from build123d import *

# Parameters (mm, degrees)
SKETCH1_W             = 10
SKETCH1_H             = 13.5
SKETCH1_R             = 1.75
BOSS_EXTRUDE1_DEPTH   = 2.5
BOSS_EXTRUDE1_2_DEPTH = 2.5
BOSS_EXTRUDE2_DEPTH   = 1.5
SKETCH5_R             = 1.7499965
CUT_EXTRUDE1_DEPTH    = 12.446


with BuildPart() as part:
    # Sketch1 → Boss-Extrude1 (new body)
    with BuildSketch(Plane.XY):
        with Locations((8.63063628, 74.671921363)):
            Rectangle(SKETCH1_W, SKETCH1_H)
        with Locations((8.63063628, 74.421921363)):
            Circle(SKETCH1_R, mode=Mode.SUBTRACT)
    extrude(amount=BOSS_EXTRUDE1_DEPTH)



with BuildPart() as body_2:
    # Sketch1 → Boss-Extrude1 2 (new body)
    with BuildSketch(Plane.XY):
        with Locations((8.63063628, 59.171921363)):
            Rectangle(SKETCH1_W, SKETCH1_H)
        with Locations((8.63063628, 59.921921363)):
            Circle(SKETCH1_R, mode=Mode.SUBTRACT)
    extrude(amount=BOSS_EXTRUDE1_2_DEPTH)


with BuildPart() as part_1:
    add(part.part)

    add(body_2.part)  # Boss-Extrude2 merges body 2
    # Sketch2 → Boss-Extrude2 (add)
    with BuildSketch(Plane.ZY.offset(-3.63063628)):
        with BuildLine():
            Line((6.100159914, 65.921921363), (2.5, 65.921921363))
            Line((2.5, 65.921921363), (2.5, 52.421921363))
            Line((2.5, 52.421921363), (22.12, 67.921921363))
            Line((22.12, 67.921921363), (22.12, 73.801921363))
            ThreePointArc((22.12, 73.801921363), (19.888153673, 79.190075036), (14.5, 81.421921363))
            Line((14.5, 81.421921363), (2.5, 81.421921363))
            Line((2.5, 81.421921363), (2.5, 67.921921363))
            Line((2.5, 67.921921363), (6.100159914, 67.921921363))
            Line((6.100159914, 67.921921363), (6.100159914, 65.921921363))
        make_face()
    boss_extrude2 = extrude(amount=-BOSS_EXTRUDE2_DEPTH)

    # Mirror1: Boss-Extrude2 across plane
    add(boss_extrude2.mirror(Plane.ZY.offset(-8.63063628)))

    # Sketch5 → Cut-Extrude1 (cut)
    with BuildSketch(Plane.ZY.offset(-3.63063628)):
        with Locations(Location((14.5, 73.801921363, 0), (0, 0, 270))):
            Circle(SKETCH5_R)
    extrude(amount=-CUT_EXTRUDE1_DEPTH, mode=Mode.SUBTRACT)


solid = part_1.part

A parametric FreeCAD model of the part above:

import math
import FreeCAD as App
import Part
import Sketcher

V = App.Vector
Q = App.Units.Quantity

doc = App.newDocument("Part")
body = doc.addObject("PartDesign::Body", "Body")

# Sketch on XY plane
sketch1 = body.newObject("Sketcher::SketchObject", "Sketch")
sketch1.AttachmentSupport = (doc.getObject("XY_Plane"), [""])
sketch1.MapMode = "FlatFace"
sketch1.addGeometry(Part.LineSegment(V(3.630636, 81.421921, 0), V(3.630636, 67.921921, 0)), False)
sketch1.addGeometry(Part.LineSegment(V(3.630636, 67.921921, 0), V(13.630636, 67.921921, 0)), False)
sketch1.addGeometry(Part.LineSegment(V(13.630636, 67.921921, 0), V(13.630636, 81.421921, 0)), False)
sketch1.addGeometry(Part.LineSegment(V(13.630636, 81.421921, 0), V(3.630636, 81.421921, 0)), False)
sketch1.addGeometry(Part.Circle(V(8.630636, 74.421921, 0), V(0, 0, 1), 1.75), False)
sketch1.addConstraint(Sketcher.Constraint("Coincident", 0, 2, 1, 1))
sketch1.addConstraint(Sketcher.Constraint("Coincident", 1, 2, 2, 1))
sketch1.addConstraint(Sketcher.Constraint("Coincident", 2, 2, 3, 1))
sketch1.addConstraint(Sketcher.Constraint("Coincident", 3, 2, 0, 1))
sketch1.addConstraint(Sketcher.Constraint("Vertical", 0))
sketch1.addConstraint(Sketcher.Constraint("Horizontal", 1))
sketch1.addConstraint(Sketcher.Constraint("Vertical", 2))
sketch1.addConstraint(Sketcher.Constraint("Horizontal", 3))
sketch1.addConstraint(Sketcher.Constraint("Diameter", 4, Q("3.5 mm")))
sketch1.addConstraint(Sketcher.Constraint("DistanceX", 1, 1, 1, 2, Q("10 mm")))
sketch1.addConstraint(Sketcher.Constraint("DistanceY", 0, 2, 0, 1, Q("13.5 mm")))
sketch1.addConstraint(Sketcher.Constraint("DistanceX", 0, 2, 4, 3, Q("5 mm")))
sketch1.addConstraint(Sketcher.Constraint("DistanceY", 4, 3, 2, 2, Q("7 mm")))
sketch1.addConstraint(Sketcher.Constraint("DistanceY", -1, 1, 4, 3, Q("74.421921 mm")))
sketch1.addConstraint(Sketcher.Constraint("DistanceX", -1, 1, 4, 3, Q("8.630636 mm")))
pad1 = body.newObject("PartDesign::Pad", "Pad")
pad1.Profile = sketch1
pad1.Length = 2.5
body2 = doc.addObject("PartDesign::Body", "Body001")

# Sketch on XY plane
sketch2 = body2.newObject("Sketcher::SketchObject", "Sketch001")
sketch2.AttachmentSupport = (doc.getObject("XY_Plane001"), [""])
sketch2.MapMode = "FlatFace"
sketch2.addGeometry(Part.LineSegment(V(3.630636, 65.921921, 0), V(3.630636, 52.421921, 0)), False)
sketch2.addGeometry(Part.LineSegment(V(3.630636, 52.421921, 0), V(13.630636, 52.421921, 0)), False)
sketch2.addGeometry(Part.LineSegment(V(13.630636, 52.421921, 0), V(13.630636, 65.921921, 0)), False)
sketch2.addGeometry(Part.LineSegment(V(13.630636, 65.921921, 0), V(3.630636, 65.921921, 0)), False)
sketch2.addGeometry(Part.Circle(V(8.630636, 59.921921, 0), V(0, 0, 1), 1.75), False)
sketch2.addConstraint(Sketcher.Constraint("Coincident", 0, 2, 1, 1))
sketch2.addConstraint(Sketcher.Constraint("Coincident", 1, 2, 2, 1))
sketch2.addConstraint(Sketcher.Constraint("Coincident", 2, 2, 3, 1))
sketch2.addConstraint(Sketcher.Constraint("Coincident", 3, 2, 0, 1))
sketch2.addConstraint(Sketcher.Constraint("Vertical", 0))
sketch2.addConstraint(Sketcher.Constraint("Horizontal", 1))
sketch2.addConstraint(Sketcher.Constraint("Vertical", 2))
sketch2.addConstraint(Sketcher.Constraint("Horizontal", 3))
sketch2.addConstraint(Sketcher.Constraint("Diameter", 4, Q("3.5 mm")))
sketch2.addConstraint(Sketcher.Constraint("DistanceX", 1, 1, 1, 2, Q("10 mm")))
sketch2.addConstraint(Sketcher.Constraint("DistanceY", 0, 2, 0, 1, Q("13.5 mm")))
sketch2.addConstraint(Sketcher.Constraint("DistanceX", 0, 2, 4, 3, Q("5 mm")))
sketch2.addConstraint(Sketcher.Constraint("DistanceY", 4, 3, 2, 2, Q("6 mm")))
sketch2.addConstraint(Sketcher.Constraint("DistanceY", -1, 1, 4, 3, Q("59.921921 mm")))
sketch2.addConstraint(Sketcher.Constraint("DistanceX", -1, 1, 4, 3, Q("8.630636 mm")))
pad2 = body2.newObject("PartDesign::Pad", "Pad001")
pad2.Profile = sketch2
pad2.Length = 2.5
body.AllowCompound = True
doc.recompute()

boolean = body.newObject("PartDesign::Boolean", "Boolean")
boolean.Type = "Fuse"
boolean.addObjects([body2])

# Sketch on YZ plane
sketch3 = body.newObject("Sketcher::SketchObject", "Sketch002")
sketch3.AttachmentSupport = (doc.getObject("YZ_Plane"), [""])
sketch3.MapMode = "FlatFace"
sketch3.AttachmentOffset = App.Placement(V(0, 0, 3.630636), App.Rotation())
sketch3.addGeometry(Part.LineSegment(V(65.921921, 6.10016, 0), V(65.921921, 2.5, 0)), False)
sketch3.addGeometry(Part.LineSegment(V(65.921921, 2.5, 0), V(52.421921, 2.5, 0)), False)
sketch3.addGeometry(Part.LineSegment(V(52.421921, 2.5, 0), V(67.921921, 22.12, 0)), False)
sketch3.addGeometry(Part.LineSegment(V(67.921921, 22.12, 0), V(73.801921, 22.12, 0)), False)
sketch3.addGeometry(Part.ArcOfCircle(Part.Circle(V(73.801921, 14.5, 0), V(0, 0, 1), 7.62), math.radians(0), math.radians(90)), False)
sketch3.addGeometry(Part.LineSegment(V(81.421921, 14.5, 0), V(81.421921, 2.5, 0)), False)
sketch3.addGeometry(Part.LineSegment(V(81.421921, 2.5, 0), V(67.921921, 2.5, 0)), False)
sketch3.addGeometry(Part.LineSegment(V(67.921921, 2.5, 0), V(67.921921, 6.10016, 0)), False)
sketch3.addGeometry(Part.LineSegment(V(67.921921, 6.10016, 0), V(65.921921, 6.10016, 0)), False)
sketch3.addConstraint(Sketcher.Constraint("Coincident", 0, 2, 1, 1))
sketch3.addConstraint(Sketcher.Constraint("Coincident", 1, 2, 2, 1))
sketch3.addConstraint(Sketcher.Constraint("Coincident", 2, 2, 3, 1))
sketch3.addConstraint(Sketcher.Constraint("Tangent", 3, 2, 4, 2))
sketch3.addConstraint(Sketcher.Constraint("Tangent", 4, 1, 5, 1))
sketch3.addConstraint(Sketcher.Constraint("Coincident", 5, 2, 6, 1))
sketch3.addConstraint(Sketcher.Constraint("Coincident", 6, 2, 7, 1))
sketch3.addConstraint(Sketcher.Constraint("Coincident", 7, 2, 8, 1))
sketch3.addConstraint(Sketcher.Constraint("Coincident", 8, 2, 0, 1))
sketch3.addConstraint(Sketcher.Constraint("Vertical", 0))
sketch3.addConstraint(Sketcher.Constraint("Horizontal", 1))
sketch3.addConstraint(Sketcher.Constraint("Horizontal", 3))
sketch3.addConstraint(Sketcher.Constraint("Vertical", 5))
sketch3.addConstraint(Sketcher.Constraint("Horizontal", 6))
sketch3.addConstraint(Sketcher.Constraint("Vertical", 7))
sketch3.addConstraint(Sketcher.Constraint("Horizontal", 8))
sketch3.addConstraint(Sketcher.Constraint("Horizontal", 1, 2, 5, 2))
sketch3.addConstraint(Sketcher.Constraint("Vertical", 2, 2, 6, 2))
sketch3.addConstraint(Sketcher.Constraint("Equal", 1, 6))
sketch3.addConstraint(Sketcher.Constraint("DistanceX", 8, 2, 8, 1, Q("2 mm")))
sketch3.addConstraint(Sketcher.Constraint("DistanceY", 5, 2, 5, 1, Q("12 mm")))
sketch3.addConstraint(Sketcher.Constraint("Radius", 4, Q("7.62 mm")))
sketch3.addConstraint(Sketcher.Constraint("DistanceX", 1, 2, 1, 1, Q("13.5 mm")))
sketch3.addConstraint(Sketcher.Constraint("DistanceY", -1, 1, 4, 3, Q("14.5 mm")))
sketch3.addConstraint(Sketcher.Constraint("DistanceY", 0, 2, 0, 1, Q("3.60016 mm")))
sketch3.addConstraint(Sketcher.Constraint("DistanceX", -1, 1, 4, 3, Q("73.801921 mm")))
pad3 = body.newObject("PartDesign::Pad", "Pad002")
pad3.Profile = sketch3
pad3.Length = 1.5
doc.recompute()

datumplane = body.newObject("PartDesign::Plane", "DatumPlane")
datumplane.AttachmentSupport = (doc.getObject("YZ_Plane"), [""])
datumplane.MapMode = "FlatFace"
datumplane.AttachmentOffset = App.Placement(V(0, 0, 8.630636), App.Rotation())
mirrored = body.newObject("PartDesign::Mirrored", "Mirrored")
mirrored.Originals = [pad3]
mirrored.MirrorPlane = (datumplane, [""])
body.Tip = mirrored

# Sketch on YZ plane
sketch4 = body.newObject("Sketcher::SketchObject", "Sketch003")
sketch4.AttachmentSupport = (doc.getObject("YZ_Plane"), [""])
sketch4.MapMode = "FlatFace"
sketch4.AttachmentOffset = App.Placement(V(0, 0, 3.630636), App.Rotation())
sketch4.addGeometry(Part.Circle(V(73.801921, 14.5, 0), V(0, 0, 1), 1.749996), False)
sketch4.addConstraint(Sketcher.Constraint("DistanceY", -1, 1, 0, 3, Q("14.5 mm")))
sketch4.addConstraint(Sketcher.Constraint("Diameter", 0, Q("3.499993 mm")))
sketch4.addConstraint(Sketcher.Constraint("DistanceX", -1, 1, 0, 3, Q("73.801921 mm")))
pocket1 = body.newObject("PartDesign::Pocket", "Pocket")
pocket1.Profile = sketch4
pocket1.Length = 12.446
pocket1.Reversed = True

doc.recompute()
